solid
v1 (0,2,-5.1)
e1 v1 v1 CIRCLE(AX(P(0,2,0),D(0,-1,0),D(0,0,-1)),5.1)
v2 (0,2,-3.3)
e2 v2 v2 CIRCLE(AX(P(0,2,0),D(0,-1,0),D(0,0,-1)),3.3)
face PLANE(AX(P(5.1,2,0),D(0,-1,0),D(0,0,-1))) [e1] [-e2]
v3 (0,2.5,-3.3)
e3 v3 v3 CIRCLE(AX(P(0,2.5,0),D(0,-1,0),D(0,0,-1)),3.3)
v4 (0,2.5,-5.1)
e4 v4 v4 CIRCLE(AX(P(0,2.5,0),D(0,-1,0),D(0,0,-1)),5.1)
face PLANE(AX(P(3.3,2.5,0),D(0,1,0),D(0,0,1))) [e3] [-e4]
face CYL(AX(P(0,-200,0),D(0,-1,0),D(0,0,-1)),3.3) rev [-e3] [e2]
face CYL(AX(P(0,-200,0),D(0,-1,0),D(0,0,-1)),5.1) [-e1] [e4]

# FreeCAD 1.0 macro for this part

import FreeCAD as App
import Part
import Sketcher
from FreeCAD import Vector
Q = App.Units.Quantity

doc = App.newDocument("Part")
body = doc.addObject("PartDesign::Body", "Body")

sketch1 = body.newObject("Sketcher::SketchObject", "Sketch")
sketch1.AttachmentSupport = (doc.getObject("XY_Plane"), [""])
sketch1.MapMode = "FlatFace"
sketch1.addGeometry([
    Part.LineSegment(Vector(3.3, 2.5, 0), Vector(3.3, 2, 0)),
    Part.LineSegment(Vector(3.3, 2, 0), Vector(5.1, 2, 0)),
    Part.LineSegment(Vector(5.1, 2, 0), Vector(5.1, 2.5, 0)),
    Part.LineSegment(Vector(5.1, 2.5, 0), Vector(3.3, 2.5, 0)),
], False)
sketch1.addConstraint([
    Sketcher.Constraint("Coincident", 0, 2, 1, 1),
    Sketcher.Constraint("Coincident", 1, 2, 2, 1),
    Sketcher.Constraint("Coincident", 2, 2, 3, 1),
    Sketcher.Constraint("Coincident", 3, 2, 0, 1),
    Sketcher.Constraint("Vertical", 0),
    Sketcher.Constraint("Horizontal", 1),
    Sketcher.Constraint("Vertical", 2),
    Sketcher.Constraint("Horizontal", 3),
    Sketcher.Constraint("DistanceX", 1, 1, 1, 2, Q("1.8 mm")),
    Sketcher.Constraint("DistanceY", 0, 2, 0, 1, Q("0.5 mm")),
    Sketcher.Constraint("DistanceY", -1, 1, 0, 2, Q("2 mm")),
    Sketcher.Constraint("DistanceX", -1, 1, 0, 2, Q("3.3 mm")),
])
revolution = body.newObject("PartDesign::Revolution", "Revolution")
revolution.Profile = sketch1
revolution.ReferenceAxis = (sketch1, ["V_Axis"])
revolution.Angle = 360

doc.recompute()
